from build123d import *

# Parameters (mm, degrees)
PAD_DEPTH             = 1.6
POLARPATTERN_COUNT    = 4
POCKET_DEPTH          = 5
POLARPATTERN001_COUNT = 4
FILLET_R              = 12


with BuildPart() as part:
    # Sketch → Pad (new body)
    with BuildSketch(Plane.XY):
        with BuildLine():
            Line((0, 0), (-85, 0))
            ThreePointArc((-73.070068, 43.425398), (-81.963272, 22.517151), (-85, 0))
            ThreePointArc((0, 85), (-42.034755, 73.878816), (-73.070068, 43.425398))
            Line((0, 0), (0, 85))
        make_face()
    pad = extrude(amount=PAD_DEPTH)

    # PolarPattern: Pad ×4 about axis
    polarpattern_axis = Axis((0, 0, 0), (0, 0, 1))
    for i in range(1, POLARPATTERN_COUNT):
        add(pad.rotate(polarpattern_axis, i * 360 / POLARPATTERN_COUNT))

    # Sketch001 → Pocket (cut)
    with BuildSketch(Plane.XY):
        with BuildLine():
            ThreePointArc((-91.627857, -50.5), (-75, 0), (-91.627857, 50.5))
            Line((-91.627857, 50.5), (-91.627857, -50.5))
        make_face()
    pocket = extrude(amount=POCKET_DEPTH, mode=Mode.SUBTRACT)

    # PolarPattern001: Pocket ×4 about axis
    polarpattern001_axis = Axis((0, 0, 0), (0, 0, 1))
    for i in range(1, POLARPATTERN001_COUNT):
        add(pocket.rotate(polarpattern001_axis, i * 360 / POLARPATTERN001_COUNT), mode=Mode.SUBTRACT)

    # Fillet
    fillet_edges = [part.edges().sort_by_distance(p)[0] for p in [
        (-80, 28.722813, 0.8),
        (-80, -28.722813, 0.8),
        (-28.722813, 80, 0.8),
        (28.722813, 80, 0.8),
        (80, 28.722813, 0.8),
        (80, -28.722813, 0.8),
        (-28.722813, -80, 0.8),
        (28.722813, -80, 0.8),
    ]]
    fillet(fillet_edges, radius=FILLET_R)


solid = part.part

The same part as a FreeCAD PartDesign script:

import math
import FreeCAD as App
import Part
import Sketcher
Q = App.Units.Quantity


def edges_at(feature, points):
    """Names of the edges that pass closest to the given points."""
    edges = feature.Shape.Edges
    near = lambda p: min(range(len(edges)), key=lambda i: edges[i].distToShape(Part.Vertex(*p))[0])
    return sorted({f"Edge{near(p) + 1}" for p in points})

doc = App.newDocument("Part")
body = doc.addObject("PartDesign::Body", "Body")

sketch1 = body.newObject("Sketcher::SketchObject", "Sketch")
sketch1.AttachmentSupport = (doc.getObject("XY_Plane"), [""])
sketch1.MapMode = "FlatFace"
sketch1.addGeometry([
    Part.LineSegment(App.Vector(-85, 0, 0), App.Vector(0, 0, 0)),
    Part.LineSegment(App.Vector(0, 0, 0), App.Vector(0, 85, 0)),
    Part.ArcOfCircle(Part.Circle(App.Vector(0, 0, 0), App.Vector(0, 0, 1), 85), math.radians(90), math.radians(149)),
    Part.ArcOfCircle(Part.Circle(App.Vector(0, 0, 0), App.Vector(0, 0, 1), 85), math.radians(149), math.radians(180)),
], False)
sketch1.addConstraint([
    Sketcher.Constraint("Coincident", 0, 2, 1, 1),
    Sketcher.Constraint("Coincident", 1, 2, 2, 1),
    Sketcher.Constraint("Tangent", 2, 2, 3, 1),
    Sketcher.Constraint("Coincident", 3, 2, 0, 1),
    Sketcher.Constraint("Horizontal", 0),
    Sketcher.Constraint("Vertical", 1),
    Sketcher.Constraint("Coincident", 2, 3, -1, 1),
    Sketcher.Constraint("Coincident", 0, 2, -1, 1),
    Sketcher.Constraint("PointOnObject", 3, 3, -1),
    Sketcher.Constraint("DistanceX", 0, 1, 0, 2, Q("85 mm")),
    Sketcher.Constraint("DistanceY", -1, 1, 2, 2, Q("43.425398 mm")),
])
pad1 = body.newObject("PartDesign::Pad", "Pad")
pad1.Profile = sketch1
pad1.Length = 1.6
doc.recompute()

polarpattern = body.newObject("PartDesign::PolarPattern", "PolarPattern")
polarpattern.Originals = [pad1]
polarpattern.Axis = (doc.getObject("Z_Axis"), [""])
polarpattern.Angle = 360
polarpattern.Occurrences = 4
body.Tip = polarpattern

sketch2 = body.newObject("Sketcher::SketchObject", "Sketch001")
sketch2.AttachmentSupport = (doc.getObject("XY_Plane"), [""])
sketch2.MapMode = "FlatFace"
sketch2.addGeometry([
    Part.ArcOfCircle(Part.Circle(App.Vector(-160, 0, 0), App.Vector(0, 0, 1), 85), math.radians(-36), math.radians(36)),
    Part.LineSegment(App.Vector(-92, 50, 0), App.Vector(-92, -50, 0)),
], False)
sketch2.addConstraint([
    Sketcher.Constraint("Coincident", 0, 1, 1, 2),
    Sketcher.Constraint("Coincident", 1, 1, 0, 2),
    Sketcher.Constraint("Vertical", 1),
    Sketcher.Constraint("PointOnObject", 0, 3, -1),
    Sketcher.Constraint("Radius", 0, Q("84.999998 mm")),
    Sketcher.Constraint("DistanceY", 1, 2, 1, 1, Q("101 mm")),
    Sketcher.Constraint("DistanceX", 0, 3, -1, 1, Q("159.999998 mm")),
])
pocket1 = body.newObject("PartDesign::Pocket", "Pocket")
pocket1.Profile = sketch2
pocket1.Length = 5
pocket1.Reversed = True
doc.recompute()

polarpattern2 = body.newObject("PartDesign::PolarPattern", "PolarPattern001")
polarpattern2.Originals = [pocket1]
polarpattern2.Axis = (doc.getObject("Z_Axis"), [""])
polarpattern2.Angle = 360
polarpattern2.Occurrences = 4
body.Tip = polarpattern2
doc.recompute()

fillet = body.newObject("PartDesign::Fillet", "Fillet")
fillet.Base = (polarpattern2, edges_at(polarpattern2, [
    (-80, 28.723, 0.8),
    (-80, -28.723, 0.8),
    (-28.723, 80, 0.8),
    (28.723, 80, 0.8),
    (80, 28.723, 0.8),
    (80, -28.723, 0.8),
    (-28.723, -80, 0.8),
    (28.723, -80, 0.8),
]))
fillet.Radius = 12

doc.recompute()
